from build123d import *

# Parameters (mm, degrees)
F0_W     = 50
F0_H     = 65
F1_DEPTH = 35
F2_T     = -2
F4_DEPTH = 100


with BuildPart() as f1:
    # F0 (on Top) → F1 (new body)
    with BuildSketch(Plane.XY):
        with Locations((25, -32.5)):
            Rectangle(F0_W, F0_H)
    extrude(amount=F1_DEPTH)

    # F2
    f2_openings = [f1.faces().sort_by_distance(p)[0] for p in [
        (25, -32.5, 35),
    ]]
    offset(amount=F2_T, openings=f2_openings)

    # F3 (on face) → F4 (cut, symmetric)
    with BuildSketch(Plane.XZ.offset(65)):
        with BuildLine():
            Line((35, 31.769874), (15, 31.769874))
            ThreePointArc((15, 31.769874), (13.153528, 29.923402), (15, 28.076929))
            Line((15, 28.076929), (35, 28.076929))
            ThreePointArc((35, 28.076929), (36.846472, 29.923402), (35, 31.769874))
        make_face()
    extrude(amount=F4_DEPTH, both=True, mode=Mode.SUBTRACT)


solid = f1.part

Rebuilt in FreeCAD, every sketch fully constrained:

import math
import FreeCAD as App
import Part
import Sketcher

V = App.Vector
Q = App.Units.Quantity


def faces_at(feature, points):
    """Names of the faces that lie closest to the given points."""
    faces = feature.Shape.Faces
    near = lambda p: min(range(len(faces)), key=lambda i: faces[i].distToShape(Part.Vertex(*p))[0])
    return sorted({f"Face{near(p) + 1}" for p in points})


def add_polygon(sketch, points):
    """Adds a closed chain of lines whose ends are joined by coincident constraints."""
    first, n = sketch.GeometryCount, len(points)
    for a, b in zip(points, points[1:] + points[:1]):
        sketch.addGeometry(Part.LineSegment(App.Vector(*a, 0), App.Vector(*b, 0)), False)
    for i in range(n):
        sketch.addConstraint(Sketcher.Constraint("Coincident", first + i, 2, first + (i + 1) % n, 1))

doc = App.newDocument("Part")
body = doc.addObject("PartDesign::Body", "Body")

sketch1 = doc.addObject("Sketcher::SketchObject", "Sketch")
body.addObject(sketch1)
sketch1.AttachmentSupport = (doc.XY_Plane, [""])
sketch1.MapMode = "FlatFace"
add_polygon(sketch1, [(0, 0), (0, -65), (50, -65), (50, 0)])
sketch1.addConstraint(Sketcher.Constraint("Vertical", 0))
sketch1.addConstraint(Sketcher.Constraint("Horizontal", 1))
sketch1.addConstraint(Sketcher.Constraint("Vertical", 2))
sketch1.addConstraint(Sketcher.Constraint("Horizontal", 3))
sketch1.addConstraint(Sketcher.Constraint("Coincident", 3, 2, -1, 1))
sketch1.addConstraint(Sketcher.Constraint("DistanceX", 1, 1, 1, 2, Q("50 mm")))
sketch1.addConstraint(Sketcher.Constraint("DistanceY", 0, 2, 0, 1, Q("65 mm")))
pad1 = doc.addObject("PartDesign::Pad", "Pad")
body.addObject(pad1)
pad1.Profile = sketch1
pad1.Length = 35
doc.recompute()

thickness = doc.addObject("PartDesign::Thickness", "Thickness")
body.addObject(thickness)
thickness.Base = (pad1, faces_at(pad1, [(25, -32.5, 35)]))
thickness.Value = 2
thickness.Reversed = True
thickness.Join = "Arc"

sketch2 = doc.addObject("Sketcher::SketchObject", "Sketch001")
body.addObject(sketch2)
sketch2.AttachmentSupport = (doc.XZ_Plane, [""])
sketch2.MapMode = "FlatFace"
sketch2.AttachmentOffset = App.Placement(V(0, 0, 65), App.Rotation())
sketch2.addGeometry(Part.LineSegment(V(35, 31.8, 0), V(15, 31.8, 0)), False)
sketch2.addGeometry(Part.ArcOfCircle(Part.Circle(V(15, 29.9, 0), V(0, 0, 1), 1.8), math.radians(90), math.radians(270)), False)
sketch2.addGeometry(Part.LineSegment(V(15, 28.1, 0), V(35, 28.1, 0)), False)
sketch2.addGeometry(Part.ArcOfCircle(Part.Circle(V(35, 29.9, 0), V(0, 0, 1), 1.8), math.radians(-90), math.radians(90)), False)
sketch2.addConstraint(Sketcher.Constraint("Tangent", 0, 2, 1, 1))
sketch2.addConstraint(Sketcher.Constraint("Tangent", 1, 2, 2, 1))
sketch2.addConstraint(Sketcher.Constraint("Tangent", 2, 2, 3, 1))
sketch2.addConstraint(Sketcher.Constraint("Tangent", 3, 2, 0, 1))
sketch2.addConstraint(Sketcher.Constraint("Horizontal", 0))
sketch2.addConstraint(Sketcher.Constraint("Horizontal", 2))
sketch2.addConstraint(Sketcher.Constraint("DistanceX", 0, 2, 0, 1, Q("20 mm")))
sketch2.addConstraint(Sketcher.Constraint("DistanceX", -1, 1, 1, 3, Q("15.000001 mm")))
sketch2.addConstraint(Sketcher.Constraint("Radius", 1, Q("1.846472 mm")))
sketch2.addConstraint(Sketcher.Constraint("DistanceY", -1, 1, 1, 3, Q("29.923402 mm")))
pocket1 = doc.addObject("PartDesign::Pocket", "Pocket")
body.addObject(pocket1)
pocket1.Profile = sketch2
pocket1.Length = 200
pocket1.Midplane = True

doc.recompute()
